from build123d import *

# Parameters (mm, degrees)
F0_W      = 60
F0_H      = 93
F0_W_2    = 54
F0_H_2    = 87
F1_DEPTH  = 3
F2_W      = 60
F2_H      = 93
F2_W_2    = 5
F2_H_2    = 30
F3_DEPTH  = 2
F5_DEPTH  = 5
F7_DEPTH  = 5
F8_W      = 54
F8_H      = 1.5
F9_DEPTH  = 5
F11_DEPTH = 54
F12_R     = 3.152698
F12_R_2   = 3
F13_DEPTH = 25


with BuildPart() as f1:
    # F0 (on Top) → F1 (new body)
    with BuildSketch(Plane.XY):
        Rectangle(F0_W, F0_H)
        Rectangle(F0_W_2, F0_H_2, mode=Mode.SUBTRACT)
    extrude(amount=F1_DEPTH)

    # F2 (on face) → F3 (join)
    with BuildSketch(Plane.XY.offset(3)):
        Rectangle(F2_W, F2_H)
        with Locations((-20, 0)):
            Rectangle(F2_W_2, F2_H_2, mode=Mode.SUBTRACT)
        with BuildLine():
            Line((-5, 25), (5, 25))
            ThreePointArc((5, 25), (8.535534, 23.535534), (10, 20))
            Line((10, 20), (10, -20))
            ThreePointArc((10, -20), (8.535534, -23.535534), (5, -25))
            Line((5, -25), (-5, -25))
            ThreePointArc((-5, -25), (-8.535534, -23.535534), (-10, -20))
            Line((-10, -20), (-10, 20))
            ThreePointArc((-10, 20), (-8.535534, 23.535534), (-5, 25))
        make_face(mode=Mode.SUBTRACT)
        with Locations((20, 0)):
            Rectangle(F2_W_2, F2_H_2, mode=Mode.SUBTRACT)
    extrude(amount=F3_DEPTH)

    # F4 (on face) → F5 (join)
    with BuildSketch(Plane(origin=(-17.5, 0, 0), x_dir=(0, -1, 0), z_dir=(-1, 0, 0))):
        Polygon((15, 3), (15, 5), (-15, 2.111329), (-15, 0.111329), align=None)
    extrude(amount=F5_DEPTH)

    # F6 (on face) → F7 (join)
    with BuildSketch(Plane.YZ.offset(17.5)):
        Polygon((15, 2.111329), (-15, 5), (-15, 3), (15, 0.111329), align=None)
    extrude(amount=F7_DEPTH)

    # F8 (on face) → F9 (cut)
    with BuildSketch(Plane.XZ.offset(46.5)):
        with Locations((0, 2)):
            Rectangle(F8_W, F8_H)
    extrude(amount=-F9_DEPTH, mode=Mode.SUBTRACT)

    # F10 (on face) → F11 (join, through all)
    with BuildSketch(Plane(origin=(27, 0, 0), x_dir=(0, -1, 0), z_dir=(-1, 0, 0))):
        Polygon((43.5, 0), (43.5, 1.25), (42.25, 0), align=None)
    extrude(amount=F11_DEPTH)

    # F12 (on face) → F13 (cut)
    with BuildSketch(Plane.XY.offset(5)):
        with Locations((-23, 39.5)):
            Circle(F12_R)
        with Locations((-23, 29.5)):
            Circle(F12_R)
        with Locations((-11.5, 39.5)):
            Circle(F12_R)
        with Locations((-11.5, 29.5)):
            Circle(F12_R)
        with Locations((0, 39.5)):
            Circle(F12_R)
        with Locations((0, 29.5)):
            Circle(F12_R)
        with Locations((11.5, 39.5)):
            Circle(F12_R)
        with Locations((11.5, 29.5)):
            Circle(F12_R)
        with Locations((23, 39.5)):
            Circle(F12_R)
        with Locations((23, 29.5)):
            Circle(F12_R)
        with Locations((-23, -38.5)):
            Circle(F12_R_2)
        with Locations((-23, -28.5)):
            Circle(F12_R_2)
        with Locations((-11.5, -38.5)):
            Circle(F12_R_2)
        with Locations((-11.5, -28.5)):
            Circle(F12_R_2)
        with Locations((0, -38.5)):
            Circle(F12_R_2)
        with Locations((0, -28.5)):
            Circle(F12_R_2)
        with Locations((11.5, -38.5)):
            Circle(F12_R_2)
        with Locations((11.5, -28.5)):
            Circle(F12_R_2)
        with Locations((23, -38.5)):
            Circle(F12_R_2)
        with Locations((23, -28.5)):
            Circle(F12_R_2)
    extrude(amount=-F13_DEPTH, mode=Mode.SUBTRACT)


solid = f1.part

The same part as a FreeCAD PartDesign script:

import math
import FreeCAD as App
import Part
import Sketcher
Q = App.Units.Quantity

doc = App.newDocument("Part")
body = doc.addObject("PartDesign::Body", "Body")

# Sketch on XY plane
sketch1 = body.newObject("Sketcher::SketchObject", "Sketch")
sketch1.AttachmentSupport = (doc.getObject("XY_Plane"), [""])
sketch1.MapMode = "FlatFace"
sketch1.addGeometry([
    Part.LineSegment(App.Vector(-30, 46, 0), App.Vector(-30, -46, 0)),  # 0
    Part.LineSegment(App.Vector(-30, -46, 0), App.Vector(30, -46, 0)),  # 1
    Part.LineSegment(App.Vector(30, -46, 0), App.Vector(30, 46, 0)),  # 2
    Part.LineSegment(App.Vector(30, 46, 0), App.Vector(-30, 46, 0)),  # 3
    Part.LineSegment(App.Vector(27, -44, 0), App.Vector(-27, -44, 0)),  # 4
    Part.LineSegment(App.Vector(-27, -44, 0), App.Vector(-27, 44, 0)),  # 5
    Part.LineSegment(App.Vector(-27, 44, 0), App.Vector(27, 44, 0)),  # 6
    Part.LineSegment(App.Vector(27, 44, 0), App.Vector(27, -44, 0)),  # 7
], False)
sketch1.addConstraint([
    Sketcher.Constraint("Coincident", 0, 2, 1, 1),
    Sketcher.Constraint("Coincident", 1, 2, 2, 1),
    Sketcher.Constraint("Coincident", 2, 2, 3, 1),
    Sketcher.Constraint("Coincident", 3, 2, 0, 1),
    Sketcher.Constraint("Coincident", 4, 2, 5, 1),
    Sketcher.Constraint("Coincident", 5, 2, 6, 1),
    Sketcher.Constraint("Coincident", 6, 2, 7, 1),
    Sketcher.Constraint("Coincident", 7, 2, 4, 1),
    Sketcher.Constraint("Vertical", 0),
    Sketcher.Constraint("Horizontal", 1),
    Sketcher.Constraint("Vertical", 2),
    Sketcher.Constraint("Horizontal", 3),
    Sketcher.Constraint("Horizontal", 4),
    Sketcher.Constraint("Vertical", 5),
    Sketcher.Constraint("Horizontal", 6),
    Sketcher.Constraint("Vertical", 7),
    Sketcher.Constraint("Symmetric", 0, 2, 2, 2, -1, 1),
    Sketcher.Constraint("Symmetric", 4, 2, 6, 2, -1, 1),
    Sketcher.Constraint("DistanceX", 1, 1, 1, 2, 60.0),
    Sketcher.Constraint("DistanceX", 4, 2, 4, 1, 54.0),
    Sketcher.Constraint("DistanceY", 0, 2, 0, 1, 93.0),
    Sketcher.Constraint("DistanceY", 5, 1, 5, 2, 87.0),
])
pad1 = body.newObject("PartDesign::Pad", "Pad")
pad1.Profile = sketch1
pad1.Length = 3

# Sketch on XY plane
sketch2 = body.newObject("Sketcher::SketchObject", "Sketch001")
sketch2.AttachmentSupport = (doc.getObject("XY_Plane"), [""])
sketch2.MapMode = "FlatFace"
sketch2.AttachmentOffset = App.Placement(App.Vector(0, 0, 3), App.Rotation())
sketch2.addGeometry([
    Part.LineSegment(App.Vector(-30, 46.5, 0), App.Vector(-30, -46.5, 0)),  # 0
    Part.LineSegment(App.Vector(-30, -46.5, 0), App.Vector(30, -46.5, 0)),  # 1
    Part.LineSegment(App.Vector(30, -46.5, 0), App.Vector(30, 46.5, 0)),  # 2
    Part.LineSegment(App.Vector(30, 46.5, 0), App.Vector(-30, 46.5, 0)),  # 3
    Part.LineSegment(App.Vector(-17.5, -15, 0), App.Vector(-22.5, -15, 0)),  # 4
    Part.LineSegment(App.Vector(-22.5, -15, 0), App.Vector(-22.5, 15, 0)),  # 5
    Part.LineSegment(App.Vector(-22.5, 15, 0), App.Vector(-17.5, 15, 0)),  # 6
    Part.LineSegment(App.Vector(-17.5, 15, 0), App.Vector(-17.5, -15, 0)),  # 7
    Part.ArcOfCircle(Part.Circle(App.Vector(-5, 20, 0), App.Vector(0, 0, 1), 5), math.radians(90), math.radians(180)),  # 8
    Part.LineSegment(App.Vector(-5, 25, 0), App.Vector(5, 25, 0)),  # 9
    Part.ArcOfCircle(Part.Circle(App.Vector(5, 20, 0), App.Vector(0, 0, 1), 5), math.radians(0), math.radians(90)),  # 10
    Part.LineSegment(App.Vector(10, 20, 0), App.Vector(10, -20, 0)),  # 11
    Part.ArcOfCircle(Part.Circle(App.Vector(5, -20, 0), App.Vector(0, 0, 1), 5), math.radians(-90), math.radians(0)),  # 12
    Part.LineSegment(App.Vector(5, -25, 0), App.Vector(-5, -25, 0)),  # 13
    Part.ArcOfCircle(Part.Circle(App.Vector(-5, -20, 0), App.Vector(0, 0, 1), 5), math.radians(180), math.radians(270)),  # 14
    Part.LineSegment(App.Vector(-10, -20, 0), App.Vector(-10, 20, 0)),  # 15
    Part.LineSegment(App.Vector(22.5, -15, 0), App.Vector(17.5, -15, 0)),  # 16
    Part.LineSegment(App.Vector(17.5, -15, 0), App.Vector(17.5, 15, 0)),  # 17
    Part.LineSegment(App.Vector(17.5, 15, 0), App.Vector(22.5, 15, 0)),  # 18
    Part.LineSegment(App.Vector(22.5, 15, 0), App.Vector(22.5, -15, 0)),  # 19
], False)
sketch2.addConstraint([
    Sketcher.Constraint("Coincident", 0, 2, 1, 1),
    Sketcher.Constraint("Coincident", 1, 2, 2, 1),
    Sketcher.Constraint("Coincident", 2, 2, 3, 1),
    Sketcher.Constraint("Coincident", 3, 2, 0, 1),
    Sketcher.Constraint("Coincident", 4, 2, 5, 1),
    Sketcher.Constraint("Coincident", 5, 2, 6, 1),
    Sketcher.Constraint("Coincident", 6, 2, 7, 1),
    Sketcher.Constraint("Coincident", 7, 2, 4, 1),
    Sketcher.Constraint("Tangent", 8, 1, 9, 1),
    Sketcher.Constraint("Tangent", 9, 2, 10, 2),
    Sketcher.Constraint("Tangent", 10, 1, 11, 1),
    Sketcher.Constraint("Tangent", 11, 2, 12, 2),
    Sketcher.Constraint("Tangent", 12, 1, 13, 1),
    Sketcher.Constraint("Tangent", 13, 2, 14, 2),
    Sketcher.Constraint("Tangent", 14, 1, 15, 1),
    Sketcher.Constraint("Tangent", 15, 2, 8, 2),
    Sketcher.Constraint("Coincident", 16, 2, 17, 1),
    Sketcher.Constraint("Coincident", 17, 2, 18, 1),
    Sketcher.Constraint("Coincident", 18, 2, 19, 1),
    Sketcher.Constraint("Coincident", 19, 2, 16, 1),
    Sketcher.Constraint("Vertical", 0),
    Sketcher.Constraint("Horizontal", 1),
    Sketcher.Constraint("Vertical", 2),
    Sketcher.Constraint("Horizontal", 3),
    Sketcher.Constraint("Horizontal", 4),
    Sketcher.Constraint("Vertical", 5),
    Sketcher.Constraint("Horizontal", 6),
    Sketcher.Constraint("Vertical", 7),
    Sketcher.Constraint("Horizontal", 9),
    Sketcher.Constraint("Vertical", 11),
    Sketcher.Constraint("Horizontal", 13),
    Sketcher.Constraint("Vertical", 15),
    Sketcher.Constraint("Horizontal", 16),
    Sketcher.Constraint("Vertical", 17),
    Sketcher.Constraint("Horizontal", 18),
    Sketcher.Constraint("Vertical", 19),
    Sketcher.Constraint("Equal", 8, 10),
    Sketcher.Constraint("Equal", 10, 12),
    Sketcher.Constraint("Equal", 12, 14),
    Sketcher.Constraint("Symmetric", 8, 3, 12, 3, -1, 1),
    Sketcher.Constraint("Symmetric", 0, 2, 2, 2, -1, 1),
    Sketcher.Constraint("Symmetric", 6, 2, 16, 2, -1, 1),
    Sketcher.Constraint("Symmetric", 4, 2, 18, 2, -1, 1),
    Sketcher.Constraint("Horizontal", 7, 2, 16, 2),
    Sketcher.Constraint("Radius", 8, 5.0),
    Sketcher.Constraint("DistanceX", 1, 1, 1, 2, 60.0),
    Sketcher.Constraint("DistanceX", 4, 2, 4, 1, 5.0),
    Sketcher.Constraint("DistanceX", 9, 1, 9, 2, 10.0),
    Sketcher.Constraint("DistanceY", 0, 2, 0, 1, 93.0),
    Sketcher.Constraint("DistanceY", 5, 1, 5, 2, 30.0),
    Sketcher.Constraint("DistanceY", 11, 2, 11, 1, 40.0),
    Sketcher.Constraint("DistanceX", 4, 2, -1, 1, 22.5),
])
pad2 = body.newObject("PartDesign::Pad", "Pad001")
pad2.Profile = sketch2
pad2.Length = 2

# Sketch on YZ plane
sketch3 = body.newObject("Sketcher::SketchObject", "Sketch002")
sketch3.AttachmentSupport = (doc.getObject("YZ_Plane"), [""])
sketch3.MapMode = "FlatFace"
sketch3.AttachmentOffset = App.Placement(App.Vector(0, 0, -17.5), App.Rotation())
sketch3.addGeometry([
    Part.LineSegment(App.Vector(-15, 3, 0), App.Vector(-15, 5, 0)),
    Part.LineSegment(App.Vector(-15, 5, 0), App.Vector(15, 2.1, 0)),
    Part.LineSegment(App.Vector(15, 2.1, 0), App.Vector(15, 0.1, 0)),
    Part.LineSegment(App.Vector(15, 0.1, 0), App.Vector(-15, 3, 0)),
], False)
sketch3.addConstraint([
    Sketcher.Constraint("Coincident", 0, 2, 1, 1),
    Sketcher.Constraint("Coincident", 1, 2, 2, 1),
    Sketcher.Constraint("Coincident", 2, 2, 3, 1),
    Sketcher.Constraint("Coincident", 3, 2, 0, 1),
    Sketcher.Constraint("Vertical", 0),
    Sketcher.Constraint("Vertical", 2),
    Sketcher.Constraint("Parallel", 1, 3),
    Sketcher.Constraint("DistanceY", 0, 1, 0, 2, 2.0),
    Sketcher.Constraint("DistanceX", 0, 2, -1, 1, 15.0),
    Sketcher.Constraint("DistanceY", -1, 1, 0, 2, 5.0),
    Sketcher.Constraint("DistanceX", -1, 1, 1, 2, 15.0),
    Sketcher.Constraint("Angle", 1, Q("-5.499999 deg")),
])
pad3 = body.newObject("PartDesign::Pad", "Pad002")
pad3.Profile = sketch3
pad3.Length = 5
pad3.Reversed = True

# Sketch on YZ plane
sketch4 = body.newObject("Sketcher::SketchObject", "Sketch003")
sketch4.AttachmentSupport = (doc.getObject("YZ_Plane"), [""])
sketch4.MapMode = "FlatFace"
sketch4.AttachmentOffset = App.Placement(App.Vector(0, 0, 17.5), App.Rotation())
sketch4.addGeometry([
    Part.LineSegment(App.Vector(15, 2.1, 0), App.Vector(-15, 5, 0)),
    Part.LineSegment(App.Vector(-15, 5, 0), App.Vector(-15, 3, 0)),
    Part.LineSegment(App.Vector(-15, 3, 0), App.Vector(15, 0.1, 0)),
    Part.LineSegment(App.Vector(15, 0.1, 0), App.Vector(15, 2.1, 0)),
], False)
sketch4.addConstraint([
    Sketcher.Constraint("Coincident", 0, 2, 1, 1),
    Sketcher.Constraint("Coincident", 1, 2, 2, 1),
    Sketcher.Constraint("Coincident", 2, 2, 3, 1),
    Sketcher.Constraint("Coincident", 3, 2, 0, 1),
    Sketcher.Constraint("Vertical", 1),
    Sketcher.Constraint("Vertical", 3),
    Sketcher.Constraint("Parallel", 0, 2),
    Sketcher.Constraint("DistanceY", 1, 2, 1, 1, 2.0),
    Sketcher.Constraint("DistanceX", 0, 2, -1, 1, 15.0),
    Sketcher.Constraint("DistanceY", -1, 1, 0, 2, 5.0),
    Sketcher.Constraint("DistanceX", -1, 1, 2, 2, 15.0),
    Sketcher.Constraint("Angle", 0, Q("174.500001 deg")),
])
pad4 = body.newObject("PartDesign::Pad", "Pad003")
pad4.Profile = sketch4
pad4.Length = 5

# Sketch on XZ plane
sketch5 = body.newObject("Sketcher::SketchObject", "Sketch004")
sketch5.AttachmentSupport = (doc.getObject("XZ_Plane"), [""])
sketch5.MapMode = "FlatFace"
sketch5.AttachmentOffset = App.Placement(App.Vector(0, 0, 46.5), App.Rotation())
sketch5.addGeometry([
    Part.LineSegment(App.Vector(-27, 2.8, 0), App.Vector(-27, 1.2, 0)),
    Part.LineSegment(App.Vector(-27, 1.2, 0), App.Vector(27, 1.2, 0)),
    Part.LineSegment(App.Vector(27, 1.2, 0), App.Vector(27, 2.8, 0)),
    Part.LineSegment(App.Vector(27, 2.8, 0), App.Vector(-27, 2.8, 0)),
], False)
sketch5.addConstraint([
    Sketcher.Constraint("Coincident", 0, 2, 1, 1),
    Sketcher.Constraint("Coincident", 1, 2, 2, 1),
    Sketcher.Constraint("Coincident", 2, 2, 3, 1),
    Sketcher.Constraint("Coincident", 3, 2, 0, 1),
    Sketcher.Constraint("Vertical", 0),
    Sketcher.Constraint("Horizontal", 1),
    Sketcher.Constraint("Vertical", 2),
    Sketcher.Constraint("Horizontal", 3),
    Sketcher.Constraint("DistanceX", 1, 1, 1, 2, 54.0),
    Sketcher.Constraint("DistanceY", 0, 2, 0, 1, 1.5),
    Sketcher.Constraint("DistanceX", 0, 2, -1, 1, 27.0),
    Sketcher.Constraint("DistanceY", -1, 1, 0, 2, 1.25),
])
pocket1 = body.newObject("PartDesign::Pocket", "Pocket")
pocket1.Profile = sketch5
pocket1.Length = 5

# Sketch on YZ plane
sketch6 = body.newObject("Sketcher::SketchObject", "Sketch005")
sketch6.AttachmentSupport = (doc.getObject("YZ_Plane"), [""])
sketch6.MapMode = "FlatFace"
sketch6.AttachmentOffset = App.Placement(App.Vector(0, 0, 27), App.Rotation())
sketch6.addGeometry([
    Part.LineSegment(App.Vector(-43.5, 0, 0), App.Vector(-43.5, 1.2, 0)),
    Part.LineSegment(App.Vector(-43.5, 1.2, 0), App.Vector(-42.2, 0, 0)),
    Part.LineSegment(App.Vector(-42.2, 0, 0), App.Vector(-43.5, 0, 0)),
], False)
sketch6.addConstraint([
    Sketcher.Constraint("Coincident", 0, 2, 1, 1),
    Sketcher.Constraint("Coincident", 1, 2, 2, 1),
    Sketcher.Constraint("Coincident", 2, 2, 0, 1),
    Sketcher.Constraint("Vertical", 0),
    Sketcher.Constraint("Horizontal", 2),
    Sketcher.Constraint("PointOnObject", 1, 2, -1),
    Sketcher.Constraint("Equal", 2, 0),
    Sketcher.Constraint("DistanceX", 2, 2, 2, 1, 1.25),
    Sketcher.Constraint("DistanceX", 0, 2, -1, 1, 43.5),
])
pad5 = body.newObject("PartDesign::Pad", "Pad004")
pad5.Profile = sketch6
pad5.Type = "UpToLast"
pad5.Reversed = True

# Sketch on XY plane
sketch7 = body.newObject("Sketcher::SketchObject", "Sketch006")
sketch7.AttachmentSupport = (doc.getObject("XY_Plane"), [""])
sketch7.MapMode = "FlatFace"
sketch7.AttachmentOffset = App.Placement(App.Vector(0, 0, 5), App.Rotation())
sketch7.addGeometry([
    Part.Circle(App.Vector(-23, 39.5, 0), App.Vector(0, 0, 1), 3.2),  # 0
    Part.Circle(App.Vector(-23, 29.5, 0), App.Vector(0, 0, 1), 3.2),  # 1
    Part.Circle(App.Vector(-11.5, 39.5, 0), App.Vector(0, 0, 1), 3.2),  # 2
    Part.Circle(App.Vector(-11.5, 29.5, 0), App.Vector(0, 0, 1), 3.2),  # 3
    Part.Circle(App.Vector(0, 39.5, 0), App.Vector(0, 0, 1), 3.2),  # 4
    Part.Circle(App.Vector(0, 29.5, 0), App.Vector(0, 0, 1), 3.2),  # 5
    Part.Circle(App.Vector(11.5, 39.5, 0), App.Vector(0, 0, 1), 3.2),  # 6
    Part.Circle(App.Vector(11.5, 29.5, 0), App.Vector(0, 0, 1), 3.2),  # 7
    Part.Circle(App.Vector(23, 39.5, 0), App.Vector(0, 0, 1), 3.2),  # 8
    Part.Circle(App.Vector(23, 29.5, 0), App.Vector(0, 0, 1), 3.2),  # 9
    Part.Circle(App.Vector(-23, -38.5, 0), App.Vector(0, 0, 1), 3),  # 10
    Part.Circle(App.Vector(-23, -28.5, 0), App.Vector(0, 0, 1), 3),  # 11
    Part.Circle(App.Vector(-11.5, -38.5, 0), App.Vector(0, 0, 1), 3),  # 12
    Part.Circle(App.Vector(-11.5, -28.5, 0), App.Vector(0, 0, 1), 3),  # 13
    Part.Circle(App.Vector(0, -38.5, 0), App.Vector(0, 0, 1), 3),  # 14
    Part.Circle(App.Vector(0, -28.5, 0), App.Vector(0, 0, 1), 3),  # 15
    Part.Circle(App.Vector(11.5, -38.5, 0), App.Vector(0, 0, 1), 3),  # 16
    Part.Circle(App.Vector(11.5, -28.5, 0), App.Vector(0, 0, 1), 3),  # 17
    Part.Circle(App.Vector(23, -38.5, 0), App.Vector(0, 0, 1), 3),  # 18
    Part.Circle(App.Vector(23, -28.5, 0), App.Vector(0, 0, 1), 3),  # 19
], False)
sketch7.addConstraint([
    Sketcher.Constraint("Equal", 0, 1),
    Sketcher.Constraint("Equal", 1, 2),
    Sketcher.Constraint("Equal", 2, 3),
    Sketcher.Constraint("Equal", 3, 4),
    Sketcher.Constraint("Equal", 4, 5),
    Sketcher.Constraint("Equal", 5, 6),
    Sketcher.Constraint("Equal", 6, 7),
    Sketcher.Constraint("Equal", 7, 8),
    Sketcher.Constraint("Equal", 8, 9),
    Sketcher.Constraint("Equal", 10, 11),
    Sketcher.Constraint("Equal", 11, 12),
    Sketcher.Constraint("Equal", 12, 13),
    Sketcher.Constraint("Equal", 13, 14),
    Sketcher.Constraint("Equal", 14, 15),
    Sketcher.Constraint("Equal", 15, 16),
    Sketcher.Constraint("Equal", 16, 17),
    Sketcher.Constraint("Equal", 17, 18),
    Sketcher.Constraint("Equal", 18, 19),
    Sketcher.Constraint("Symmetric", 2, 3, 6, 3, -2),
    Sketcher.Constraint("Symmetric", 3, 3, 7, 3, -2),
    Sketcher.Constraint("Symmetric", 0, 3, 8, 3, -2),
    Sketcher.Constraint("Symmetric", 1, 3, 9, 3, -2),
    Sketcher.Constraint("Symmetric", 12, 3, 16, 3, -2),
    Sketcher.Constraint("Symmetric", 13, 3, 17, 3, -2),
    Sketcher.Constraint("Symmetric", 10, 3, 18, 3, -2),
    Sketcher.Constraint("Symmetric", 11, 3, 19, 3, -2),
    Sketcher.Constraint("PointOnObject", 4, 3, -2),
    Sketcher.Constraint("PointOnObject", 5, 3, -2),
    Sketcher.Constraint("PointOnObject", 14, 3, -2),
    Sketcher.Constraint("PointOnObject", 15, 3, -2),
    Sketcher.Constraint("Horizontal", 0, 3, 2, 3),
    Sketcher.Constraint("Horizontal", 1, 3, 3, 3),
    Sketcher.Constraint("Horizontal", 2, 3, 4, 3),
    Sketcher.Constraint("Horizontal", 3, 3, 5, 3),
    Sketcher.Constraint("Horizontal", 10, 3, 12, 3),
    Sketcher.Constraint("Horizontal", 11, 3, 13, 3),
    Sketcher.Constraint("Horizontal", 12, 3, 14, 3),
    Sketcher.Constraint("Horizontal", 13, 3, 15, 3),
    Sketcher.Constraint("Vertical", 0, 3, 1, 3),
    Sketcher.Constraint("Vertical", 2, 3, 3, 3),
    Sketcher.Constraint("Vertical", 1, 3, 10, 3),
    Sketcher.Constraint("Vertical", 10, 3, 11, 3),
    Sketcher.Constraint("Vertical", 3, 3, 12, 3),
    Sketcher.Constraint("Vertical", 12, 3, 13, 3),
    Sketcher.Constraint("Diameter", 10, 6.0),
    Sketcher.Constraint("DistanceX", 0, 3, -1, 1, 23.0),
    Sketcher.Constraint("DistanceY", 1, 3, 0, 3, 10.0),
    Sketcher.Constraint("DistanceX", 2, 3, 6, 3, 23.0),
    Sketcher.Constraint("DistanceY", 10, 3, 1, 3, 68.0),
    Sketcher.Constraint("DistanceY", 10, 3, 11, 3, 10.0),
    Sketcher.Constraint("DistanceY", -1, 1, 0, 3, 39.5),
    Sketcher.Constraint("Diameter", 0, 6.305396),
])
pocket2 = body.newObject("PartDesign::Pocket", "Pocket001")
pocket2.Profile = sketch7
pocket2.Length = 25

doc.recompute()
